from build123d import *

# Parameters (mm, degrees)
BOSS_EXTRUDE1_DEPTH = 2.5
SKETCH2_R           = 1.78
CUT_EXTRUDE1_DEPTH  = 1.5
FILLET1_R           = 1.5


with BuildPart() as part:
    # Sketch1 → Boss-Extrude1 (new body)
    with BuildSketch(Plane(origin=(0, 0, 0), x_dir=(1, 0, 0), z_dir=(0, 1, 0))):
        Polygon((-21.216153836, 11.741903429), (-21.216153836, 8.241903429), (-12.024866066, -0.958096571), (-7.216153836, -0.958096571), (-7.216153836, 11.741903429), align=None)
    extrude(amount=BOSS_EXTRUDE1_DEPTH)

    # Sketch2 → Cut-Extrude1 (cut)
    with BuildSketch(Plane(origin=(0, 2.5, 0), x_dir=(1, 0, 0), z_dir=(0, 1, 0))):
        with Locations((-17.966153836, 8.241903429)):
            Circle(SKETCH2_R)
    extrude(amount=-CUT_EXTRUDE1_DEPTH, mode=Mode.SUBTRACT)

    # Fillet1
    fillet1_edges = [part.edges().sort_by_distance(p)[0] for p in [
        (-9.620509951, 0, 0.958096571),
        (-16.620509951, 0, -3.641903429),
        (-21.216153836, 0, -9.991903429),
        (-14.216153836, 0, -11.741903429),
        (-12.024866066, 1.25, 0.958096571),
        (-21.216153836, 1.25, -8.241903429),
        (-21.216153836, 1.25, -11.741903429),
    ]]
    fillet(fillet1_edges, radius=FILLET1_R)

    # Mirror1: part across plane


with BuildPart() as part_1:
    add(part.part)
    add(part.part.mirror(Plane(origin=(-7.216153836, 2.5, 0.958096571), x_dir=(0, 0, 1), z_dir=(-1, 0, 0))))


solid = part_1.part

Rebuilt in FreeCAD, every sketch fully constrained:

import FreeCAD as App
import Part
import Sketcher

V = App.Vector
Q = App.Units.Quantity


def edges_at(feature, points):
    """Names of the edges that pass closest to the given points."""
    edges = feature.Shape.Edges
    near = lambda p: min(range(len(edges)), key=lambda i: edges[i].distToShape(Part.Vertex(*p))[0])
    return sorted({f"Edge{near(p) + 1}" for p in points})


def add_polygon(sketch, points):
    """Adds a closed chain of lines whose ends are joined by coincident constraints."""
    first, n = sketch.GeometryCount, len(points)
    for a, b in zip(points, points[1:] + points[:1]):
        sketch.addGeometry(Part.LineSegment(App.Vector(*a, 0), App.Vector(*b, 0)), False)
    for i in range(n):
        sketch.addConstraint(Sketcher.Constraint("Coincident", first + i, 2, first + (i + 1) % n, 1))

doc = App.newDocument("Part")
body = doc.addObject("PartDesign::Body", "Body")

# Sketch on XZ plane
sketch1 = body.newObject("Sketcher::SketchObject", "Sketch")
sketch1.AttachmentSupport = (doc.getObject("XZ_Plane"), [""])
sketch1.MapMode = "FlatFace"
add_polygon(sketch1, [(-21.216154, -11.741903), (-21.216154, -8.241903), (-12.024866, 0.958097), (-7.216154, 0.958097), (-7.216154, -11.741903)])  # lines 0-4
sketch1.addConstraint(Sketcher.Constraint("Vertical", 0))
sketch1.addConstraint(Sketcher.Constraint("Horizontal", 2))
sketch1.addConstraint(Sketcher.Constraint("Vertical", 3))
sketch1.addConstraint(Sketcher.Constraint("Horizontal", 4))
sketch1.addConstraint(Sketcher.Constraint("DistanceX", 4, 2, 4, 1, Q("14 mm")))
sketch1.addConstraint(Sketcher.Constraint("DistanceY", 0, 1, 0, 2, Q("3.5 mm")))
sketch1.addConstraint(Sketcher.Constraint("DistanceY", 3, 2, 3, 1, Q("12.7 mm")))
sketch1.addConstraint(Sketcher.Constraint("DistanceX", 2, 1, 2, 2, Q("4.808712 mm")))
sketch1.addConstraint(Sketcher.Constraint("DistanceX", 0, 2, -1, 1, Q("21.216154 mm")))
sketch1.addConstraint(Sketcher.Constraint("DistanceY", 0, 2, -1, 1, Q("8.241903 mm")))
pad1 = body.newObject("PartDesign::Pad", "Pad")
pad1.Profile = sketch1
pad1.Length = 2.5
pad1.Reversed = True

# Sketch on XZ plane
sketch2 = body.newObject("Sketcher::SketchObject", "Sketch001")
sketch2.AttachmentSupport = (doc.getObject("XZ_Plane"), [""])
sketch2.MapMode = "FlatFace"
sketch2.AttachmentOffset = App.Placement(V(0, 0, -2.5), App.Rotation())
sketch2.addGeometry(Part.Circle(V(-17.966154, -8.241903, 0), V(0, 0, 1), 1.78), False)
sketch2.addConstraint(Sketcher.Constraint("Diameter", 0, Q("3.56 mm")))
sketch2.addConstraint(Sketcher.Constraint("DistanceX", 0, 3, -1, 1, Q("17.966154 mm")))
sketch2.addConstraint(Sketcher.Constraint("DistanceY", 0, 3, -1, 1, Q("8.241903 mm")))
pocket1 = body.newObject("PartDesign::Pocket", "Pocket")
pocket1.Profile = sketch2
pocket1.Length = 1.5
pocket1.Reversed = True
doc.recompute()

fillet = body.newObject("PartDesign::Fillet", "Fillet")
fillet.Base = (pocket1, edges_at(pocket1, [
    (-9.621, 0, 0.958),
    (-16.621, 0, -3.642),
    (-21.216, 0, -9.992),
    (-14.216, 0, -11.742),
    (-12.025, 1.25, 0.958),
    (-21.216, 1.25, -8.242),
    (-21.216, 1.25, -11.742),
]))
fillet.Radius = 1.5
body2 = doc.addObject("PartDesign::Body", "Body001")
doc.recompute()

body2.BaseFeature = body
doc.recompute()

mirroring = doc.addObject("Part::Mirroring", "Mirroring")
mirroring.Source = body
mirroring.Base = V(-7.216154, 2.5, 0.958097)
mirroring.Normal = V(-1, 0, 0)
body3 = doc.addObject("PartDesign::Body", "Body002")
body3.BaseFeature = mirroring
boolean = body2.newObject("PartDesign::Boolean", "Boolean")
boolean.Type = "Fuse"
boolean.addObjects([body3])
doc.recompute()
mirroring.Visibility = False

doc.recompute()
